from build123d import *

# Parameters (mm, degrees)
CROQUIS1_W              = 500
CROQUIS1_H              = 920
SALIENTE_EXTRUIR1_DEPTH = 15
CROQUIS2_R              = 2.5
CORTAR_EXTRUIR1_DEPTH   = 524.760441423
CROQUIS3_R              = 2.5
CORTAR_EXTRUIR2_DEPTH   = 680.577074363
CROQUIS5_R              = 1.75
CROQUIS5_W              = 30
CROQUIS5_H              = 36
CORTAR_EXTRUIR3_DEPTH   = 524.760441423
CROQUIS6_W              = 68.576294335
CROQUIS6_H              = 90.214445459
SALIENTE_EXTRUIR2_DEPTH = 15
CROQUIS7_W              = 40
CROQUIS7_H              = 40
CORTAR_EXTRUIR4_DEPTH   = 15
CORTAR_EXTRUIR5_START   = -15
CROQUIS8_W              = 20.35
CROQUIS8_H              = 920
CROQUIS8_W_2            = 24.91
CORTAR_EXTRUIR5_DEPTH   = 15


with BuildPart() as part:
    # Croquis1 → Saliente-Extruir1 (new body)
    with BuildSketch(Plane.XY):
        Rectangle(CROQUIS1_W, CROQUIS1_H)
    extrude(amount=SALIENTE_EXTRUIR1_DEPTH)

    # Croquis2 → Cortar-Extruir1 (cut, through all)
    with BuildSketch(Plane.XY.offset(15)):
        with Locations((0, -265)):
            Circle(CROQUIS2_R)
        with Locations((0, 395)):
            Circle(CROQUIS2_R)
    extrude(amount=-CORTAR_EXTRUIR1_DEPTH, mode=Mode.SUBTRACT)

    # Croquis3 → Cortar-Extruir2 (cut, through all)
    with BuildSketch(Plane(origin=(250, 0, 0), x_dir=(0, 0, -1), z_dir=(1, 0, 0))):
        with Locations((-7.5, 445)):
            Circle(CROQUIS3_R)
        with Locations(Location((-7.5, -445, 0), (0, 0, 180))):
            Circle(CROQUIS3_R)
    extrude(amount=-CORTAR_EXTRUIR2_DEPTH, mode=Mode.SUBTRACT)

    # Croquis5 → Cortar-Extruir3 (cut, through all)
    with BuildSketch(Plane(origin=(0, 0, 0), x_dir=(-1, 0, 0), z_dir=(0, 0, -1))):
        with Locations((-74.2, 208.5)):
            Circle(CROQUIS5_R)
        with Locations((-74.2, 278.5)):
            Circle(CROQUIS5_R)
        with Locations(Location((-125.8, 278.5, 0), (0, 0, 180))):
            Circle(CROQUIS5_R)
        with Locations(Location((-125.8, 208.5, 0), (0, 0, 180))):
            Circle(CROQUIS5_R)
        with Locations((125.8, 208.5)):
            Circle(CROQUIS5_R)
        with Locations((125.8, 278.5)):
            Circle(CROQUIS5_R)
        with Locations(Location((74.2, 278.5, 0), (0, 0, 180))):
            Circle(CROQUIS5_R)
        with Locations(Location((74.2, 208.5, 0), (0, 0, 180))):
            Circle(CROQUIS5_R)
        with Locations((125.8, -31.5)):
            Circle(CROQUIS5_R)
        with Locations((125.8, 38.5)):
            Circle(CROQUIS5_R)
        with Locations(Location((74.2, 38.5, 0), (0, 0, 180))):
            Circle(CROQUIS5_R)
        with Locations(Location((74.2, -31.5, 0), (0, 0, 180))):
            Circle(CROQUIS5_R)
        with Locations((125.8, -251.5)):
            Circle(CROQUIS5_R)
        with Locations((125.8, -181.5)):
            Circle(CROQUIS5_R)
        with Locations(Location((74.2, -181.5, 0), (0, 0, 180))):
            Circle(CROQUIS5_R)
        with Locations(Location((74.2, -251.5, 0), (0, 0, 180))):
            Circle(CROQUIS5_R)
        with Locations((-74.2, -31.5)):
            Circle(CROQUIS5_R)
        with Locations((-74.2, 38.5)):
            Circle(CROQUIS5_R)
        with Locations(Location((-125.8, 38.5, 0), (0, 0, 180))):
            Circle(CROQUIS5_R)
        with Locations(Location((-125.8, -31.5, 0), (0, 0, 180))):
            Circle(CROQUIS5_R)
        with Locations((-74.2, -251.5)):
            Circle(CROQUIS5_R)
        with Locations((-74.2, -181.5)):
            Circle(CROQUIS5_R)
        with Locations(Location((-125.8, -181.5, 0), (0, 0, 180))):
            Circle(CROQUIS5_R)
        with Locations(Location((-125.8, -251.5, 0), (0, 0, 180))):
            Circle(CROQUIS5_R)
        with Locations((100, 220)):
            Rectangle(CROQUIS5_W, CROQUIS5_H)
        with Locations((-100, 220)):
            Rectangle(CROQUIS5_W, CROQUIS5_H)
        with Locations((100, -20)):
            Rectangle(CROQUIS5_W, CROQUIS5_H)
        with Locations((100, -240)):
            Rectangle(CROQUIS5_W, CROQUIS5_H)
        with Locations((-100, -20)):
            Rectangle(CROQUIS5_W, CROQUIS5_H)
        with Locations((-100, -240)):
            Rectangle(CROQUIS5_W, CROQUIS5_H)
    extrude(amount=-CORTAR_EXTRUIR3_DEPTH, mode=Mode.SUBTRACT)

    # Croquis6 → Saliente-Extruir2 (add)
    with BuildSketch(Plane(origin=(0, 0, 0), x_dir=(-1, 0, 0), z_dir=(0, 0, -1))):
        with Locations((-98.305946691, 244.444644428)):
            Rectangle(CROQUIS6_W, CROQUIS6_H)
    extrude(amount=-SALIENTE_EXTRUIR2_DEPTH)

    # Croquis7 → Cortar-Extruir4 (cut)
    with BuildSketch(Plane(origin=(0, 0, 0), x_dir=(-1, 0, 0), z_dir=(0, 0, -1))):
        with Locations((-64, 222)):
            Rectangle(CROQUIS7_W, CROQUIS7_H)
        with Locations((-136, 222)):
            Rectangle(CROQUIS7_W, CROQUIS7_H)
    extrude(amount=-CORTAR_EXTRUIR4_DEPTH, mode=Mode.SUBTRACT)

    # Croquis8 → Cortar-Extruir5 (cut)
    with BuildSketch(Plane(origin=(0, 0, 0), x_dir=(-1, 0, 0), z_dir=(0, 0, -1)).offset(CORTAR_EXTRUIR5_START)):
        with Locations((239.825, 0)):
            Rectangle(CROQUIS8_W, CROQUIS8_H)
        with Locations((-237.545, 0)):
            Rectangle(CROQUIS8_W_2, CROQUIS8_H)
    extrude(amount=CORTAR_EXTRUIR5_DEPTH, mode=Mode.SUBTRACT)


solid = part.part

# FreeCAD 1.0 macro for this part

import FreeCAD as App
import Part
import Sketcher
from FreeCAD import Vector
Q = App.Units.Quantity

doc = App.newDocument("Part")
params = doc.addObject("Spreadsheet::Sheet", "Params")
for row, (alias, value) in enumerate([
    ("sketch1_width", "500 mm"),
    ("sketch1_height", "920 mm"),
    ("pad1_length", "15 mm"),
    ("sketch2_diameter", "5 mm"),
    ("sketch3_diameter", "5 mm"),
    ("sketch4_diameter", "3.5 mm"),
    ("sketch4_width", "30 mm"),
    ("sketch4_height", "36 mm"),
    ("pad2_length", "15 mm"),
    ("sketch6_width", "40 mm"),
    ("pocket4_length", "15 mm"),
    ("sketch7_height", "920 mm"),
    ("sketch7_width", "20.35 mm"),
    ("sketch7_width2", "24.91 mm"),
    ("pocket5_length", "15 mm"),
], start=1):
    params.set(f"A{row}", alias)
    params.set(f"B{row}", "=" + value)
    params.setAlias(f"B{row}", alias)

body = doc.addObject("PartDesign::Body", "Body")

sketch1 = doc.addObject("Sketcher::SketchObject", "Sketch")
body.addObject(sketch1)
sketch1.AttachmentSupport = (doc.XY_Plane, [""])
sketch1.MapMode = "FlatFace"
sketch1.addGeometry(Part.LineSegment(Vector(-250, 460, 0), Vector(-250, -460, 0)), False)
sketch1.addGeometry(Part.LineSegment(Vector(-250, -460, 0), Vector(250, -460, 0)), False)
sketch1.addGeometry(Part.LineSegment(Vector(250, -460, 0), Vector(250, 460, 0)), False)
sketch1.addGeometry(Part.LineSegment(Vector(250, 460, 0), Vector(-250, 460, 0)), False)
sketch1.addConstraint(Sketcher.Constraint("Coincident", 0, 2, 1, 1))
sketch1.addConstraint(Sketcher.Constraint("Coincident", 1, 2, 2, 1))
sketch1.addConstraint(Sketcher.Constraint("Coincident", 2, 2, 3, 1))
sketch1.addConstraint(Sketcher.Constraint("Coincident", 3, 2, 0, 1))
sketch1.addConstraint(Sketcher.Constraint("Vertical", 0))
sketch1.addConstraint(Sketcher.Constraint("Horizontal", 1))
sketch1.addConstraint(Sketcher.Constraint("Vertical", 2))
sketch1.addConstraint(Sketcher.Constraint("Horizontal", 3))
sketch1.addConstraint(Sketcher.Constraint("Symmetric", 0, 2, 2, 2, -1, 1))
sketch1.addConstraint(Sketcher.Constraint("DistanceX", 1, 1, 1, 2, Q("500 mm")))
sketch1.addConstraint(Sketcher.Constraint("DistanceY", 0, 2, 0, 1, Q("920 mm")))
sketch1.setExpression("Constraints[9]", "Params.sketch1_width")
sketch1.setExpression("Constraints[10]", "Params.sketch1_height")
pad1 = doc.addObject("PartDesign::Pad", "Pad")
body.addObject(pad1)
pad1.Profile = sketch1
pad1.setExpression("Length", "Params.pad1_length")

sketch2 = doc.addObject("Sketcher::SketchObject", "Sketch001")
body.addObject(sketch2)
sketch2.AttachmentSupport = (doc.XY_Plane, [""])
sketch2.MapMode = "FlatFace"
sketch2.AttachmentOffset = App.Placement(Vector(0, 0, 15), App.Rotation())
sketch2.addGeometry(Part.Circle(Vector(0, -265, 0), Vector(0, 0, 1), 2.5), False)
sketch2.addGeometry(Part.Circle(Vector(0, 395, 0), Vector(0, 0, 1), 2.5), False)
sketch2.addConstraint(Sketcher.Constraint("Equal", 0, 1))
sketch2.addConstraint(Sketcher.Constraint("PointOnObject", 0, 3, -2))
sketch2.addConstraint(Sketcher.Constraint("PointOnObject", 1, 3, -2))
sketch2.addConstraint(Sketcher.Constraint("Diameter", 0, Q("5 mm")))
sketch2.addConstraint(Sketcher.Constraint("DistanceY", 0, 3, -1, 1, Q("265 mm")))
sketch2.addConstraint(Sketcher.Constraint("DistanceY", -1, 1, 1, 3, Q("395 mm")))
sketch2.setExpression("Constraints[3]", "Params.sketch2_diameter")
pocket1 = doc.addObject("PartDesign::Pocket", "Pocket")
body.addObject(pocket1)
pocket1.Profile = sketch2
pocket1.Type = "ThroughAll"

sketch3 = doc.addObject("Sketcher::SketchObject", "Sketch002")
body.addObject(sketch3)
sketch3.AttachmentSupport = (doc.YZ_Plane, [""])
sketch3.MapMode = "FlatFace"
sketch3.AttachmentOffset = App.Placement(Vector(0, 0, 250), App.Rotation())
sketch3.addGeometry(Part.Circle(Vector(445, 7.5, 0), Vector(0, 0, 1), 2.5), False)
sketch3.addGeometry(Part.Circle(Vector(-445, 7.5, 0), Vector(0, 0, 1), 2.5), False)
sketch3.addConstraint(Sketcher.Constraint("Equal", 0, 1))
sketch3.addConstraint(Sketcher.Constraint("Symmetric", 0, 3, 1, 3, -2))
sketch3.addConstraint(Sketcher.Constraint("Diameter", 0, Q("5 mm")))
sketch3.addConstraint(Sketcher.Constraint("DistanceX", -1, 1, 0, 3, Q("445 mm")))
sketch3.addConstraint(Sketcher.Constraint("DistanceY", -1, 1, 0, 3, Q("7.5 mm")))
sketch3.setExpression("Constraints[2]", "Params.sketch3_diameter")
pocket2 = doc.addObject("PartDesign::Pocket", "Pocket001")
body.addObject(pocket2)
pocket2.Profile = sketch3
pocket2.Type = "ThroughAll"

sketch4 = doc.addObject("Sketcher::SketchObject", "Sketch003")
body.addObject(sketch4)
sketch4.AttachmentSupport = (doc.XY_Plane, [""])
sketch4.MapMode = "FlatFace"
sketch4.addGeometry(Part.Circle(Vector(74.2, 208.5, 0), Vector(0, 0, 1), 1.8), False)
sketch4.addGeometry(Part.Circle(Vector(74.2, 278.5, 0), Vector(0, 0, 1), 1.8), False)
sketch4.addGeometry(Part.Circle(Vector(125.8, 278.5, 0), Vector(0, 0, 1), 1.8), False)
sketch4.addGeometry(Part.Circle(Vector(125.8, 208.5, 0), Vector(0, 0, 1), 1.8), False)
sketch4.addGeometry(Part.Circle(Vector(-125.8, 208.5, 0), Vector(0, 0, 1), 1.8), False)
sketch4.addGeometry(Part.Circle(Vector(-125.8, 278.5, 0), Vector(0, 0, 1), 1.8), False)
sketch4.addGeometry(Part.Circle(Vector(-74.2, 278.5, 0), Vector(0, 0, 1), 1.8), False)
sketch4.addGeometry(Part.Circle(Vector(-74.2, 208.5, 0), Vector(0, 0, 1), 1.8), False)
sketch4.addGeometry(Part.Circle(Vector(-125.8, -31.5, 0), Vector(0, 0, 1), 1.8), False)
sketch4.addGeometry(Part.Circle(Vector(-125.8, 38.5, 0), Vector(0, 0, 1), 1.8), False)
sketch4.addGeometry(Part.Circle(Vector(-74.2, 38.5, 0), Vector(0, 0, 1), 1.8), False)
sketch4.addGeometry(Part.Circle(Vector(-74.2, -31.5, 0), Vector(0, 0, 1), 1.8), False)
sketch4.addGeometry(Part.Circle(Vector(-125.8, -251.5, 0), Vector(0, 0, 1), 1.8), False)
sketch4.addGeometry(Part.Circle(Vector(-125.8, -181.5, 0), Vector(0, 0, 1), 1.8), False)
sketch4.addGeometry(Part.Circle(Vector(-74.2, -181.5, 0), Vector(0, 0, 1), 1.8), False)
sketch4.addGeometry(Part.Circle(Vector(-74.2, -251.5, 0), Vector(0, 0, 1), 1.8), False)
sketch4.addGeometry(Part.Circle(Vector(74.2, -31.5, 0), Vector(0, 0, 1), 1.8), False)
sketch4.addGeometry(Part.Circle(Vector(74.2, 38.5, 0), Vector(0, 0, 1), 1.8), False)
sketch4.addGeometry(Part.Circle(Vector(125.8, 38.5, 0), Vector(0, 0, 1), 1.8), False)
sketch4.addGeometry(Part.Circle(Vector(125.8, -31.5, 0), Vector(0, 0, 1), 1.8), False)
sketch4.addGeometry(Part.Circle(Vector(74.2, -251.5, 0), Vector(0, 0, 1), 1.8), False)
sketch4.addGeometry(Part.Circle(Vector(74.2, -181.5, 0), Vector(0, 0, 1), 1.8), False)
sketch4.addGeometry(Part.Circle(Vector(125.8, -181.5, 0), Vector(0, 0, 1), 1.8), False)
sketch4.addGeometry(Part.Circle(Vector(125.8, -251.5, 0), Vector(0, 0, 1), 1.8), False)
sketch4.addGeometry(Part.LineSegment(Vector(-85, 238, 0), Vector(-85, 202, 0)), False)
sketch4.addGeometry(Part.LineSegment(Vector(-85, 202, 0), Vector(-115, 202, 0)), False)
sketch4.addGeometry(Part.LineSegment(Vector(-115, 202, 0), Vector(-115, 238, 0)), False)
sketch4.addGeometry(Part.LineSegment(Vector(-115, 238, 0), Vector(-85, 238, 0)), False)
sketch4.addGeometry(Part.LineSegment(Vector(115, 238, 0), Vector(115, 202, 0)), False)
sketch4.addGeometry(Part.LineSegment(Vector(115, 202, 0), Vector(85, 202, 0)), False)
sketch4.addGeometry(Part.LineSegment(Vector(85, 202, 0), Vector(85, 238, 0)), False)
sketch4.addGeometry(Part.LineSegment(Vector(85, 238, 0), Vector(115, 238, 0)), False)
sketch4.addGeometry(Part.LineSegment(Vector(-85, -2, 0), Vector(-85, -38, 0)), False)
sketch4.addGeometry(Part.LineSegment(Vector(-85, -38, 0), Vector(-115, -38, 0)), False)
sketch4.addGeometry(Part.LineSegment(Vector(-115, -38, 0), Vector(-115, -2, 0)), False)
sketch4.addGeometry(Part.LineSegment(Vector(-115, -2, 0), Vector(-85, -2, 0)), False)
sketch4.addGeometry(Part.LineSegment(Vector(-85, -222, 0), Vector(-85, -258, 0)), False)
sketch4.addGeometry(Part.LineSegment(Vector(-85, -258, 0), Vector(-115, -258, 0)), False)
sketch4.addGeometry(Part.LineSegment(Vector(-115, -258, 0), Vector(-115, -222, 0)), False)
sketch4.addGeometry(Part.LineSegment(Vector(-115, -222, 0), Vector(-85, -222, 0)), False)
sketch4.addGeometry(Part.LineSegment(Vector(115, -2, 0), Vector(115, -38, 0)), False)
sketch4.addGeometry(Part.LineSegment(Vector(115, -38, 0), Vector(85, -38, 0)), False)
sketch4.addGeometry(Part.LineSegment(Vector(85, -38, 0), Vector(85, -2, 0)), False)
sketch4.addGeometry(Part.LineSegment(Vector(85, -2, 0), Vector(115, -2, 0)), False)
sketch4.addGeometry(Part.LineSegment(Vector(115, -222, 0), Vector(115, -258, 0)), False)
sketch4.addGeometry(Part.LineSegment(Vector(115, -258, 0), Vector(85, -258, 0)), False)
sketch4.addGeometry(Part.LineSegment(Vector(85, -258, 0), Vector(85, -222, 0)), False)
sketch4.addGeometry(Part.LineSegment(Vector(85, -222, 0), Vector(115, -222, 0)), False)
sketch4.addConstraint(Sketcher.Constraint("Coincident", 24, 2, 25, 1))
sketch4.addConstraint(Sketcher.Constraint("Coincident", 25, 2, 26, 1))
sketch4.addConstraint(Sketcher.Constraint("Coincident", 26, 2, 27, 1))
sketch4.addConstraint(Sketcher.Constraint("Coincident", 27, 2, 24, 1))
sketch4.addConstraint(Sketcher.Constraint("Coincident", 28, 2, 29, 1))
sketch4.addConstraint(Sketcher.Constraint("Coincident", 29, 2, 30, 1))
sketch4.addConstraint(Sketcher.Constraint("Coincident", 30, 2, 31, 1))
sketch4.addConstraint(Sketcher.Constraint("Coincident", 31, 2, 28, 1))
sketch4.addConstraint(Sketcher.Constraint("Coincident", 32, 2, 33, 1))
sketch4.addConstraint(Sketcher.Constraint("Coincident", 33, 2, 34, 1))
sketch4.addConstraint(Sketcher.Constraint("Coincident", 34, 2, 35, 1))
sketch4.addConstraint(Sketcher.Constraint("Coincident", 35, 2, 32, 1))
sketch4.addConstraint(Sketcher.Constraint("Coincident", 36, 2, 37, 1))
sketch4.addConstraint(Sketcher.Constraint("Coincident", 37, 2, 38, 1))
sketch4.addConstraint(Sketcher.Constraint("Coincident", 38, 2, 39, 1))
sketch4.addConstraint(Sketcher.Constraint("Coincident", 39, 2, 36, 1))
sketch4.addConstraint(Sketcher.Constraint("Coincident", 40, 2, 41, 1))
sketch4.addConstraint(Sketcher.Constraint("Coincident", 41, 2, 42, 1))
sketch4.addConstraint(Sketcher.Constraint("Coincident", 42, 2, 43, 1))
sketch4.addConstraint(Sketcher.Constraint("Coincident", 43, 2, 40, 1))
sketch4.addConstraint(Sketcher.Constraint("Coincident", 44, 2, 45, 1))
sketch4.addConstraint(Sketcher.Constraint("Coincident", 45, 2, 46, 1))
sketch4.addConstraint(Sketcher.Constraint("Coincident", 46, 2, 47, 1))
sketch4.addConstraint(Sketcher.Constraint("Coincident", 47, 2, 44, 1))
sketch4.addConstraint(Sketcher.Constraint("Vertical", 24))
sketch4.addConstraint(Sketcher.Constraint("Horizontal", 25))
sketch4.addConstraint(Sketcher.Constraint("Vertical", 26))
sketch4.addConstraint(Sketcher.Constraint("Horizontal", 27))
sketch4.addConstraint(Sketcher.Constraint("Vertical", 28))
sketch4.addConstraint(Sketcher.Constraint("Horizontal", 29))
sketch4.addConstraint(Sketcher.Constraint("Vertical", 30))
sketch4.addConstraint(Sketcher.Constraint("Horizontal", 31))
sketch4.addConstraint(Sketcher.Constraint("Vertical", 32))
sketch4.addConstraint(Sketcher.Constraint("Horizontal", 33))
sketch4.addConstraint(Sketcher.Constraint("Vertical", 34))
sketch4.addConstraint(Sketcher.Constraint("Horizontal", 35))
sketch4.addConstraint(Sketcher.Constraint("Vertical", 36))
sketch4.addConstraint(Sketcher.Constraint("Horizontal", 37))
sketch4.addConstraint(Sketcher.Constraint("Vertical", 38))
sketch4.addConstraint(Sketcher.Constraint("Horizontal", 39))
sketch4.addConstraint(Sketcher.Constraint("Vertical", 40))
sketch4.addConstraint(Sketcher.Constraint("Horizontal", 41))
sketch4.addConstraint(Sketcher.Constraint("Vertical", 42))
sketch4.addConstraint(Sketcher.Constraint("Horizontal", 43))
sketch4.addConstraint(Sketcher.Constraint("Vertical", 44))
sketch4.addConstraint(Sketcher.Constraint("Horizontal", 45))
sketch4.addConstraint(Sketcher.Constraint("Vertical", 46))
sketch4.addConstraint(Sketcher.Constraint("Horizontal", 47))
sketch4.addConstraint(Sketcher.Constraint("Equal", 0, 1))
sketch4.addConstraint(Sketcher.Constraint("Equal", 1, 2))
sketch4.addConstraint(Sketcher.Constraint("Equal", 2, 3))
sketch4.addConstraint(Sketcher.Constraint("Equal", 3, 4))
sketch4.addConstraint(Sketcher.Constraint("Equal", 4, 5))
sketch4.addConstraint(Sketcher.Constraint("Equal", 5, 6))
sketch4.addConstraint(Sketcher.Constraint("Equal", 6, 7))
sketch4.addConstraint(Sketcher.Constraint("Equal", 7, 8))
sketch4.addConstraint(Sketcher.Constraint("Equal", 8, 9))
sketch4.addConstraint(Sketcher.Constraint("Equal", 9, 10))
sketch4.addConstraint(Sketcher.Constraint("Equal", 10, 11))
sketch4.addConstraint(Sketcher.Constraint("Equal", 11, 12))
sketch4.addConstraint(Sketcher.Constraint("Equal", 12, 13))
sketch4.addConstraint(Sketcher.Constraint("Equal", 13, 14))
sketch4.addConstraint(Sketcher.Constraint("Equal", 14, 15))
sketch4.addConstraint(Sketcher.Constraint("Equal", 15, 16))
sketch4.addConstraint(Sketcher.Constraint("Equal", 16, 17))
sketch4.addConstraint(Sketcher.Constraint("Equal", 17, 18))
sketch4.addConstraint(Sketcher.Constraint("Equal", 18, 19))
sketch4.addConstraint(Sketcher.Constraint("Equal", 19, 20))
sketch4.addConstraint(Sketcher.Constraint("Equal", 20, 21))
sketch4.addConstraint(Sketcher.Constraint("Equal", 21, 22))
sketch4.addConstraint(Sketcher.Constraint("Equal", 22, 23))
sketch4.addConstraint(Sketcher.Constraint("Symmetric", 3, 3, 4, 3, -2))
sketch4.addConstraint(Sketcher.Constraint("Symmetric", 2, 3, 5, 3, -2))
sketch4.addConstraint(Sketcher.Constraint("Symmetric", 1, 3, 6, 3, -2))
sketch4.addConstraint(Sketcher.Constraint("Symmetric", 0, 3, 7, 3, -2))
sketch4.addConstraint(Sketcher.Constraint("Symmetric", 11, 3, 16, 3, -2))
sketch4.addConstraint(Sketcher.Constraint("Symmetric", 10, 3, 17, 3, -2))
sketch4.addConstraint(Sketcher.Constraint("Symmetric", 9, 3, 18, 3, -2))
sketch4.addConstraint(Sketcher.Constraint("Symmetric", 8, 3, 19, 3, -2))
sketch4.addConstraint(Sketcher.Constraint("Symmetric", 15, 3, 20, 3, -2))
sketch4.addConstraint(Sketcher.Constraint("Symmetric", 14, 3, 21, 3, -2))
sketch4.addConstraint(Sketcher.Constraint("Symmetric", 13, 3, 22, 3, -2))
sketch4.addConstraint(Sketcher.Constraint("Symmetric", 12, 3, 23, 3, -2))
sketch4.addConstraint(Sketcher.Constraint("Symmetric", 25, 2, 28, 2, -2))
sketch4.addConstraint(Sketcher.Constraint("Symmetric", 27, 2, 30, 2, -2))
sketch4.addConstraint(Sketcher.Constraint("Symmetric", 33, 2, 40, 2, -2))
sketch4.addConstraint(Sketcher.Constraint("Symmetric", 35, 2, 42, 2, -2))
sketch4.addConstraint(Sketcher.Constraint("Symmetric", 37, 2, 44, 2, -2))
sketch4.addConstraint(Sketcher.Constraint("Symmetric", 39, 2, 46, 2, -2))
sketch4.addConstraint(Sketcher.Constraint("Horizontal", 1, 3, 2, 3))
sketch4.addConstraint(Sketcher.Constraint("Horizontal", 0, 3, 3, 3))
sketch4.addConstraint(Sketcher.Constraint("Horizontal", 9, 3, 10, 3))
sketch4.addConstraint(Sketcher.Constraint("Horizontal", 8, 3, 11, 3))
sketch4.addConstraint(Sketcher.Constraint("Horizontal", 13, 3, 14, 3))
sketch4.addConstraint(Sketcher.Constraint("Horizontal", 12, 3, 15, 3))
sketch4.addConstraint(Sketcher.Constraint("Vertical", 0, 3, 1, 3))
sketch4.addConstraint(Sketcher.Constraint("Vertical", 2, 3, 3, 3))
sketch4.addConstraint(Sketcher.Constraint("Vertical", 5, 3, 8, 3))
sketch4.addConstraint(Sketcher.Constraint("Vertical", 8, 3, 9, 3))
sketch4.addConstraint(Sketcher.Constraint("Vertical", 7, 3, 10, 3))
sketch4.addConstraint(Sketcher.Constraint("Vertical", 10, 3, 11, 3))
sketch4.addConstraint(Sketcher.Constraint("Vertical", 9, 3, 12, 3))
sketch4.addConstraint(Sketcher.Constraint("Vertical", 12, 3, 13, 3))
sketch4.addConstraint(Sketcher.Constraint("Vertical", 11, 3, 14, 3))
sketch4.addConstraint(Sketcher.Constraint("Vertical", 14, 3, 15, 3))
sketch4.addConstraint(Sketcher.Constraint("Vertical", 27, 2, 32, 2))
sketch4.addConstraint(Sketcher.Constraint("Vertical", 26, 2, 33, 2))
sketch4.addConstraint(Sketcher.Constraint("Vertical", 35, 2, 36, 2))
sketch4.addConstraint(Sketcher.Constraint("Vertical", 34, 2, 37, 2))
sketch4.addConstraint(Sketcher.Constraint("Equal", 30, 32))
sketch4.addConstraint(Sketcher.Constraint("Equal", 34, 36))
sketch4.addConstraint(Sketcher.Constraint("Diameter", 0, Q("3.5 mm")))
sketch4.addConstraint(Sketcher.Constraint("DistanceX", 25, 2, 25, 1, Q("30 mm")))
sketch4.addConstraint(Sketcher.Constraint("DistanceY", 24, 2, 24, 1, Q("36 mm")))
sketch4.addConstraint(Sketcher.Constraint("DistanceX", 24, 2, -1, 1, Q("85 mm")))
sketch4.addConstraint(Sketcher.Constraint("DistanceY", -1, 1, 24, 2, Q("202 mm")))
sketch4.addConstraint(Sketcher.Constraint("DistanceY", 32, 2, -1, 1, Q("38 mm")))
sketch4.addConstraint(Sketcher.Constraint("DistanceY", 36, 2, -1, 1, Q("258 mm")))
sketch4.addConstraint(Sketcher.Constraint("DistanceY", 0, 3, 1, 3, Q("70 mm")))
sketch4.addConstraint(Sketcher.Constraint("DistanceX", 4, 3, 0, 3, Q("200 mm")))
sketch4.addConstraint(Sketcher.Constraint("DistanceY", 8, 3, 4, 3, Q("240 mm")))
sketch4.addConstraint(Sketcher.Constraint("DistanceY", 8, 3, 9, 3, Q("70 mm")))
sketch4.addConstraint(Sketcher.Constraint("DistanceY", 12, 3, 8, 3, Q("220 mm")))
sketch4.addConstraint(Sketcher.Constraint("DistanceY", 12, 3, 13, 3, Q("70 mm")))
sketch4.addConstraint(Sketcher.Constraint("DistanceX", -1, 1, 0, 3, Q("74.2 mm")))
sketch4.addConstraint(Sketcher.Constraint("DistanceY", -1, 1, 0, 3, Q("208.5 mm")))
sketch4.setExpression("Constraints[111]", "Params.sketch4_diameter")
sketch4.setExpression("Constraints[112]", "Params.sketch4_width")
sketch4.setExpression("Constraints[113]", "Params.sketch4_height")
pocket3 = doc.addObject("PartDesign::Pocket", "Pocket002")
body.addObject(pocket3)
pocket3.Profile = sketch4
pocket3.Type = "ThroughAll"
pocket3.Reversed = True

sketch5 = doc.addObject("Sketcher::SketchObject", "Sketch004")
body.addObject(sketch5)
sketch5.AttachmentSupport = (doc.XY_Plane, [""])
sketch5.MapMode = "FlatFace"
sketch5.addGeometry(Part.LineSegment(Vector(133, 290, 0), Vector(133, 199, 0)), False)
sketch5.addGeometry(Part.LineSegment(Vector(133, 199, 0), Vector(64, 199, 0)), False)
sketch5.addGeometry(Part.LineSegment(Vector(64, 199, 0), Vector(64, 290, 0)), False)
sketch5.addGeometry(Part.LineSegment(Vector(64, 290, 0), Vector(133, 290, 0)), False)
sketch5.addConstraint(Sketcher.Constraint("Coincident", 0, 2, 1, 1))
sketch5.addConstraint(Sketcher.Constraint("Coincident", 1, 2, 2, 1))
sketch5.addConstraint(Sketcher.Constraint("Coincident", 2, 2, 3, 1))
sketch5.addConstraint(Sketcher.Constraint("Coincident", 3, 2, 0, 1))
sketch5.addConstraint(Sketcher.Constraint("Vertical", 0))
sketch5.addConstraint(Sketcher.Constraint("Horizontal", 1))
sketch5.addConstraint(Sketcher.Constraint("Vertical", 2))
sketch5.addConstraint(Sketcher.Constraint("Horizontal", 3))
sketch5.addConstraint(Sketcher.Constraint("DistanceX", -1, 1, 1, 2, Q("64.0178 mm")))
sketch5.addConstraint(Sketcher.Constraint("DistanceX", 1, 2, 1, 1, Q("68.576294 mm")))
sketch5.addConstraint(Sketcher.Constraint("DistanceY", 0, 2, 0, 1, Q("90.214445 mm")))
sketch5.addConstraint(Sketcher.Constraint("DistanceY", -1, 1, 0, 2, Q("199.337422 mm")))
pad2 = doc.addObject("PartDesign::Pad", "Pad001")
body.addObject(pad2)
pad2.Profile = sketch5
pad2.setExpression("Length", "Params.pad2_length")

sketch6 = doc.addObject("Sketcher::SketchObject", "Sketch005")
body.addObject(sketch6)
sketch6.AttachmentSupport = (doc.XY_Plane, [""])
sketch6.MapMode = "FlatFace"
sketch6.addGeometry(Part.LineSegment(Vector(84, 242, 0), Vector(84, 202, 0)), False)
sketch6.addGeometry(Part.LineSegment(Vector(84, 202, 0), Vector(44, 202, 0)), False)
sketch6.addGeometry(Part.LineSegment(Vector(44, 202, 0), Vector(44, 242, 0)), False)
sketch6.addGeometry(Part.LineSegment(Vector(44, 242, 0), Vector(84, 242, 0)), False)
sketch6.addGeometry(Part.LineSegment(Vector(156, 242, 0), Vector(156, 202, 0)), False)
sketch6.addGeometry(Part.LineSegment(Vector(156, 202, 0), Vector(116, 202, 0)), False)
sketch6.addGeometry(Part.LineSegment(Vector(116, 202, 0), Vector(116, 242, 0)), False)
sketch6.addGeometry(Part.LineSegment(Vector(116, 242, 0), Vector(156, 242, 0)), False)
sketch6.addConstraint(Sketcher.Constraint("Coincident", 0, 2, 1, 1))
sketch6.addConstraint(Sketcher.Constraint("Coincident", 1, 2, 2, 1))
sketch6.addConstraint(Sketcher.Constraint("Coincident", 2, 2, 3, 1))
sketch6.addConstraint(Sketcher.Constraint("Coincident", 3, 2, 0, 1))
sketch6.addConstraint(Sketcher.Constraint("Coincident", 4, 2, 5, 1))
sketch6.addConstraint(Sketcher.Constraint("Coincident", 5, 2, 6, 1))
sketch6.addConstraint(Sketcher.Constraint("Coincident", 6, 2, 7, 1))
sketch6.addConstraint(Sketcher.Constraint("Coincident", 7, 2, 4, 1))
sketch6.addConstraint(Sketcher.Constraint("Vertical", 0))
sketch6.addConstraint(Sketcher.Constraint("Horizontal", 1))
sketch6.addConstraint(Sketcher.Constraint("Vertical", 2))
sketch6.addConstraint(Sketcher.Constraint("Horizontal", 3))
sketch6.addConstraint(Sketcher.Constraint("Vertical", 4))
sketch6.addConstraint(Sketcher.Constraint("Horizontal", 5))
sketch6.addConstraint(Sketcher.Constraint("Vertical", 6))
sketch6.addConstraint(Sketcher.Constraint("Horizontal", 7))
sketch6.addConstraint(Sketcher.Constraint("Horizontal", 1, 2, 4, 2))
sketch6.addConstraint(Sketcher.Constraint("Horizontal", 3, 2, 6, 2))
sketch6.addConstraint(Sketcher.Constraint("Equal", 3, 5))
sketch6.addConstraint(Sketcher.Constraint("Equal", 7, 0))
sketch6.addConstraint(Sketcher.Constraint("DistanceX", 1, 2, 1, 1, Q("40 mm")))
sketch6.addConstraint(Sketcher.Constraint("DistanceX", -1, 1, 0, 2, Q("84 mm")))
sketch6.addConstraint(Sketcher.Constraint("DistanceY", -1, 1, 0, 2, Q("202 mm")))
sketch6.addConstraint(Sketcher.Constraint("DistanceX", -1, 1, 4, 2, Q("156 mm")))
sketch6.setExpression("Constraints[20]", "Params.sketch6_width")
pocket4 = doc.addObject("PartDesign::Pocket", "Pocket003")
body.addObject(pocket4)
pocket4.Profile = sketch6
pocket4.setExpression("Length", "Params.pocket4_length")
pocket4.Reversed = True

sketch7 = doc.addObject("Sketcher::SketchObject", "Sketch006")
body.addObject(sketch7)
sketch7.AttachmentSupport = (doc.XY_Plane, [""])
sketch7.MapMode = "FlatFace"
sketch7.AttachmentOffset = App.Placement(Vector(0, 0, 15), App.Rotation())
sketch7.addGeometry(Part.LineSegment(Vector(-230, 460, 0), Vector(-230, -460, 0)), False)
sketch7.addGeometry(Part.LineSegment(Vector(-230, -460, 0), Vector(-250, -460, 0)), False)
sketch7.addGeometry(Part.LineSegment(Vector(-250, -460, 0), Vector(-250, 460, 0)), False)
sketch7.addGeometry(Part.LineSegment(Vector(-250, 460, 0), Vector(-230, 460, 0)), False)
sketch7.addGeometry(Part.LineSegment(Vector(250, 460, 0), Vector(250, -460, 0)), False)
sketch7.addGeometry(Part.LineSegment(Vector(250, -460, 0), Vector(225, -460, 0)), False)
sketch7.addGeometry(Part.LineSegment(Vector(225, -460, 0), Vector(225, 460, 0)), False)
sketch7.addGeometry(Part.LineSegment(Vector(225, 460, 0), Vector(250, 460, 0)), False)
sketch7.addConstraint(Sketcher.Constraint("Coincident", 0, 2, 1, 1))
sketch7.addConstraint(Sketcher.Constraint("Coincident", 1, 2, 2, 1))
sketch7.addConstraint(Sketcher.Constraint("Coincident", 2, 2, 3, 1))
sketch7.addConstraint(Sketcher.Constraint("Coincident", 3, 2, 0, 1))
sketch7.addConstraint(Sketcher.Constraint("Coincident", 4, 2, 5, 1))
sketch7.addConstraint(Sketcher.Constraint("Coincident", 5, 2, 6, 1))
sketch7.addConstraint(Sketcher.Constraint("Coincident", 6, 2, 7, 1))
sketch7.addConstraint(Sketcher.Constraint("Coincident", 7, 2, 4, 1))
sketch7.addConstraint(Sketcher.Constraint("Vertical", 0))
sketch7.addConstraint(Sketcher.Constraint("Horizontal", 1))
sketch7.addConstraint(Sketcher.Constraint("Vertical", 2))
sketch7.addConstraint(Sketcher.Constraint("Horizontal", 3))
sketch7.addConstraint(Sketcher.Constraint("Vertical", 4))
sketch7.addConstraint(Sketcher.Constraint("Horizontal", 5))
sketch7.addConstraint(Sketcher.Constraint("Vertical", 6))
sketch7.addConstraint(Sketcher.Constraint("Horizontal", 7))
sketch7.addConstraint(Sketcher.Constraint("Symmetric", 2, 2, 4, 2, -1, 1))
sketch7.addConstraint(Sketcher.Constraint("Horizontal", 1, 2, 4, 2))
sketch7.addConstraint(Sketcher.Constraint("Horizontal", 3, 2, 6, 2))
sketch7.addConstraint(Sketcher.Constraint("DistanceY", 0, 2, 0, 1, Q("920 mm")))
sketch7.addConstraint(Sketcher.Constraint("DistanceX", 1, 2, -1, 1, Q("250 mm")))
sketch7.addConstraint(Sketcher.Constraint("DistanceX", 1, 2, 1, 1, Q("20.35 mm")))
sketch7.addConstraint(Sketcher.Constraint("DistanceX", 5, 2, 5, 1, Q("24.91 mm")))
sketch7.setExpression("Constraints[19]", "Params.sketch7_height")
sketch7.setExpression("Constraints[21]", "Params.sketch7_width")
sketch7.setExpression("Constraints[22]", "Params.sketch7_width2")
pocket5 = doc.addObject("PartDesign::Pocket", "Pocket004")
body.addObject(pocket5)
pocket5.Profile = sketch7
pocket5.setExpression("Length", "Params.pocket5_length")

doc.recompute()
